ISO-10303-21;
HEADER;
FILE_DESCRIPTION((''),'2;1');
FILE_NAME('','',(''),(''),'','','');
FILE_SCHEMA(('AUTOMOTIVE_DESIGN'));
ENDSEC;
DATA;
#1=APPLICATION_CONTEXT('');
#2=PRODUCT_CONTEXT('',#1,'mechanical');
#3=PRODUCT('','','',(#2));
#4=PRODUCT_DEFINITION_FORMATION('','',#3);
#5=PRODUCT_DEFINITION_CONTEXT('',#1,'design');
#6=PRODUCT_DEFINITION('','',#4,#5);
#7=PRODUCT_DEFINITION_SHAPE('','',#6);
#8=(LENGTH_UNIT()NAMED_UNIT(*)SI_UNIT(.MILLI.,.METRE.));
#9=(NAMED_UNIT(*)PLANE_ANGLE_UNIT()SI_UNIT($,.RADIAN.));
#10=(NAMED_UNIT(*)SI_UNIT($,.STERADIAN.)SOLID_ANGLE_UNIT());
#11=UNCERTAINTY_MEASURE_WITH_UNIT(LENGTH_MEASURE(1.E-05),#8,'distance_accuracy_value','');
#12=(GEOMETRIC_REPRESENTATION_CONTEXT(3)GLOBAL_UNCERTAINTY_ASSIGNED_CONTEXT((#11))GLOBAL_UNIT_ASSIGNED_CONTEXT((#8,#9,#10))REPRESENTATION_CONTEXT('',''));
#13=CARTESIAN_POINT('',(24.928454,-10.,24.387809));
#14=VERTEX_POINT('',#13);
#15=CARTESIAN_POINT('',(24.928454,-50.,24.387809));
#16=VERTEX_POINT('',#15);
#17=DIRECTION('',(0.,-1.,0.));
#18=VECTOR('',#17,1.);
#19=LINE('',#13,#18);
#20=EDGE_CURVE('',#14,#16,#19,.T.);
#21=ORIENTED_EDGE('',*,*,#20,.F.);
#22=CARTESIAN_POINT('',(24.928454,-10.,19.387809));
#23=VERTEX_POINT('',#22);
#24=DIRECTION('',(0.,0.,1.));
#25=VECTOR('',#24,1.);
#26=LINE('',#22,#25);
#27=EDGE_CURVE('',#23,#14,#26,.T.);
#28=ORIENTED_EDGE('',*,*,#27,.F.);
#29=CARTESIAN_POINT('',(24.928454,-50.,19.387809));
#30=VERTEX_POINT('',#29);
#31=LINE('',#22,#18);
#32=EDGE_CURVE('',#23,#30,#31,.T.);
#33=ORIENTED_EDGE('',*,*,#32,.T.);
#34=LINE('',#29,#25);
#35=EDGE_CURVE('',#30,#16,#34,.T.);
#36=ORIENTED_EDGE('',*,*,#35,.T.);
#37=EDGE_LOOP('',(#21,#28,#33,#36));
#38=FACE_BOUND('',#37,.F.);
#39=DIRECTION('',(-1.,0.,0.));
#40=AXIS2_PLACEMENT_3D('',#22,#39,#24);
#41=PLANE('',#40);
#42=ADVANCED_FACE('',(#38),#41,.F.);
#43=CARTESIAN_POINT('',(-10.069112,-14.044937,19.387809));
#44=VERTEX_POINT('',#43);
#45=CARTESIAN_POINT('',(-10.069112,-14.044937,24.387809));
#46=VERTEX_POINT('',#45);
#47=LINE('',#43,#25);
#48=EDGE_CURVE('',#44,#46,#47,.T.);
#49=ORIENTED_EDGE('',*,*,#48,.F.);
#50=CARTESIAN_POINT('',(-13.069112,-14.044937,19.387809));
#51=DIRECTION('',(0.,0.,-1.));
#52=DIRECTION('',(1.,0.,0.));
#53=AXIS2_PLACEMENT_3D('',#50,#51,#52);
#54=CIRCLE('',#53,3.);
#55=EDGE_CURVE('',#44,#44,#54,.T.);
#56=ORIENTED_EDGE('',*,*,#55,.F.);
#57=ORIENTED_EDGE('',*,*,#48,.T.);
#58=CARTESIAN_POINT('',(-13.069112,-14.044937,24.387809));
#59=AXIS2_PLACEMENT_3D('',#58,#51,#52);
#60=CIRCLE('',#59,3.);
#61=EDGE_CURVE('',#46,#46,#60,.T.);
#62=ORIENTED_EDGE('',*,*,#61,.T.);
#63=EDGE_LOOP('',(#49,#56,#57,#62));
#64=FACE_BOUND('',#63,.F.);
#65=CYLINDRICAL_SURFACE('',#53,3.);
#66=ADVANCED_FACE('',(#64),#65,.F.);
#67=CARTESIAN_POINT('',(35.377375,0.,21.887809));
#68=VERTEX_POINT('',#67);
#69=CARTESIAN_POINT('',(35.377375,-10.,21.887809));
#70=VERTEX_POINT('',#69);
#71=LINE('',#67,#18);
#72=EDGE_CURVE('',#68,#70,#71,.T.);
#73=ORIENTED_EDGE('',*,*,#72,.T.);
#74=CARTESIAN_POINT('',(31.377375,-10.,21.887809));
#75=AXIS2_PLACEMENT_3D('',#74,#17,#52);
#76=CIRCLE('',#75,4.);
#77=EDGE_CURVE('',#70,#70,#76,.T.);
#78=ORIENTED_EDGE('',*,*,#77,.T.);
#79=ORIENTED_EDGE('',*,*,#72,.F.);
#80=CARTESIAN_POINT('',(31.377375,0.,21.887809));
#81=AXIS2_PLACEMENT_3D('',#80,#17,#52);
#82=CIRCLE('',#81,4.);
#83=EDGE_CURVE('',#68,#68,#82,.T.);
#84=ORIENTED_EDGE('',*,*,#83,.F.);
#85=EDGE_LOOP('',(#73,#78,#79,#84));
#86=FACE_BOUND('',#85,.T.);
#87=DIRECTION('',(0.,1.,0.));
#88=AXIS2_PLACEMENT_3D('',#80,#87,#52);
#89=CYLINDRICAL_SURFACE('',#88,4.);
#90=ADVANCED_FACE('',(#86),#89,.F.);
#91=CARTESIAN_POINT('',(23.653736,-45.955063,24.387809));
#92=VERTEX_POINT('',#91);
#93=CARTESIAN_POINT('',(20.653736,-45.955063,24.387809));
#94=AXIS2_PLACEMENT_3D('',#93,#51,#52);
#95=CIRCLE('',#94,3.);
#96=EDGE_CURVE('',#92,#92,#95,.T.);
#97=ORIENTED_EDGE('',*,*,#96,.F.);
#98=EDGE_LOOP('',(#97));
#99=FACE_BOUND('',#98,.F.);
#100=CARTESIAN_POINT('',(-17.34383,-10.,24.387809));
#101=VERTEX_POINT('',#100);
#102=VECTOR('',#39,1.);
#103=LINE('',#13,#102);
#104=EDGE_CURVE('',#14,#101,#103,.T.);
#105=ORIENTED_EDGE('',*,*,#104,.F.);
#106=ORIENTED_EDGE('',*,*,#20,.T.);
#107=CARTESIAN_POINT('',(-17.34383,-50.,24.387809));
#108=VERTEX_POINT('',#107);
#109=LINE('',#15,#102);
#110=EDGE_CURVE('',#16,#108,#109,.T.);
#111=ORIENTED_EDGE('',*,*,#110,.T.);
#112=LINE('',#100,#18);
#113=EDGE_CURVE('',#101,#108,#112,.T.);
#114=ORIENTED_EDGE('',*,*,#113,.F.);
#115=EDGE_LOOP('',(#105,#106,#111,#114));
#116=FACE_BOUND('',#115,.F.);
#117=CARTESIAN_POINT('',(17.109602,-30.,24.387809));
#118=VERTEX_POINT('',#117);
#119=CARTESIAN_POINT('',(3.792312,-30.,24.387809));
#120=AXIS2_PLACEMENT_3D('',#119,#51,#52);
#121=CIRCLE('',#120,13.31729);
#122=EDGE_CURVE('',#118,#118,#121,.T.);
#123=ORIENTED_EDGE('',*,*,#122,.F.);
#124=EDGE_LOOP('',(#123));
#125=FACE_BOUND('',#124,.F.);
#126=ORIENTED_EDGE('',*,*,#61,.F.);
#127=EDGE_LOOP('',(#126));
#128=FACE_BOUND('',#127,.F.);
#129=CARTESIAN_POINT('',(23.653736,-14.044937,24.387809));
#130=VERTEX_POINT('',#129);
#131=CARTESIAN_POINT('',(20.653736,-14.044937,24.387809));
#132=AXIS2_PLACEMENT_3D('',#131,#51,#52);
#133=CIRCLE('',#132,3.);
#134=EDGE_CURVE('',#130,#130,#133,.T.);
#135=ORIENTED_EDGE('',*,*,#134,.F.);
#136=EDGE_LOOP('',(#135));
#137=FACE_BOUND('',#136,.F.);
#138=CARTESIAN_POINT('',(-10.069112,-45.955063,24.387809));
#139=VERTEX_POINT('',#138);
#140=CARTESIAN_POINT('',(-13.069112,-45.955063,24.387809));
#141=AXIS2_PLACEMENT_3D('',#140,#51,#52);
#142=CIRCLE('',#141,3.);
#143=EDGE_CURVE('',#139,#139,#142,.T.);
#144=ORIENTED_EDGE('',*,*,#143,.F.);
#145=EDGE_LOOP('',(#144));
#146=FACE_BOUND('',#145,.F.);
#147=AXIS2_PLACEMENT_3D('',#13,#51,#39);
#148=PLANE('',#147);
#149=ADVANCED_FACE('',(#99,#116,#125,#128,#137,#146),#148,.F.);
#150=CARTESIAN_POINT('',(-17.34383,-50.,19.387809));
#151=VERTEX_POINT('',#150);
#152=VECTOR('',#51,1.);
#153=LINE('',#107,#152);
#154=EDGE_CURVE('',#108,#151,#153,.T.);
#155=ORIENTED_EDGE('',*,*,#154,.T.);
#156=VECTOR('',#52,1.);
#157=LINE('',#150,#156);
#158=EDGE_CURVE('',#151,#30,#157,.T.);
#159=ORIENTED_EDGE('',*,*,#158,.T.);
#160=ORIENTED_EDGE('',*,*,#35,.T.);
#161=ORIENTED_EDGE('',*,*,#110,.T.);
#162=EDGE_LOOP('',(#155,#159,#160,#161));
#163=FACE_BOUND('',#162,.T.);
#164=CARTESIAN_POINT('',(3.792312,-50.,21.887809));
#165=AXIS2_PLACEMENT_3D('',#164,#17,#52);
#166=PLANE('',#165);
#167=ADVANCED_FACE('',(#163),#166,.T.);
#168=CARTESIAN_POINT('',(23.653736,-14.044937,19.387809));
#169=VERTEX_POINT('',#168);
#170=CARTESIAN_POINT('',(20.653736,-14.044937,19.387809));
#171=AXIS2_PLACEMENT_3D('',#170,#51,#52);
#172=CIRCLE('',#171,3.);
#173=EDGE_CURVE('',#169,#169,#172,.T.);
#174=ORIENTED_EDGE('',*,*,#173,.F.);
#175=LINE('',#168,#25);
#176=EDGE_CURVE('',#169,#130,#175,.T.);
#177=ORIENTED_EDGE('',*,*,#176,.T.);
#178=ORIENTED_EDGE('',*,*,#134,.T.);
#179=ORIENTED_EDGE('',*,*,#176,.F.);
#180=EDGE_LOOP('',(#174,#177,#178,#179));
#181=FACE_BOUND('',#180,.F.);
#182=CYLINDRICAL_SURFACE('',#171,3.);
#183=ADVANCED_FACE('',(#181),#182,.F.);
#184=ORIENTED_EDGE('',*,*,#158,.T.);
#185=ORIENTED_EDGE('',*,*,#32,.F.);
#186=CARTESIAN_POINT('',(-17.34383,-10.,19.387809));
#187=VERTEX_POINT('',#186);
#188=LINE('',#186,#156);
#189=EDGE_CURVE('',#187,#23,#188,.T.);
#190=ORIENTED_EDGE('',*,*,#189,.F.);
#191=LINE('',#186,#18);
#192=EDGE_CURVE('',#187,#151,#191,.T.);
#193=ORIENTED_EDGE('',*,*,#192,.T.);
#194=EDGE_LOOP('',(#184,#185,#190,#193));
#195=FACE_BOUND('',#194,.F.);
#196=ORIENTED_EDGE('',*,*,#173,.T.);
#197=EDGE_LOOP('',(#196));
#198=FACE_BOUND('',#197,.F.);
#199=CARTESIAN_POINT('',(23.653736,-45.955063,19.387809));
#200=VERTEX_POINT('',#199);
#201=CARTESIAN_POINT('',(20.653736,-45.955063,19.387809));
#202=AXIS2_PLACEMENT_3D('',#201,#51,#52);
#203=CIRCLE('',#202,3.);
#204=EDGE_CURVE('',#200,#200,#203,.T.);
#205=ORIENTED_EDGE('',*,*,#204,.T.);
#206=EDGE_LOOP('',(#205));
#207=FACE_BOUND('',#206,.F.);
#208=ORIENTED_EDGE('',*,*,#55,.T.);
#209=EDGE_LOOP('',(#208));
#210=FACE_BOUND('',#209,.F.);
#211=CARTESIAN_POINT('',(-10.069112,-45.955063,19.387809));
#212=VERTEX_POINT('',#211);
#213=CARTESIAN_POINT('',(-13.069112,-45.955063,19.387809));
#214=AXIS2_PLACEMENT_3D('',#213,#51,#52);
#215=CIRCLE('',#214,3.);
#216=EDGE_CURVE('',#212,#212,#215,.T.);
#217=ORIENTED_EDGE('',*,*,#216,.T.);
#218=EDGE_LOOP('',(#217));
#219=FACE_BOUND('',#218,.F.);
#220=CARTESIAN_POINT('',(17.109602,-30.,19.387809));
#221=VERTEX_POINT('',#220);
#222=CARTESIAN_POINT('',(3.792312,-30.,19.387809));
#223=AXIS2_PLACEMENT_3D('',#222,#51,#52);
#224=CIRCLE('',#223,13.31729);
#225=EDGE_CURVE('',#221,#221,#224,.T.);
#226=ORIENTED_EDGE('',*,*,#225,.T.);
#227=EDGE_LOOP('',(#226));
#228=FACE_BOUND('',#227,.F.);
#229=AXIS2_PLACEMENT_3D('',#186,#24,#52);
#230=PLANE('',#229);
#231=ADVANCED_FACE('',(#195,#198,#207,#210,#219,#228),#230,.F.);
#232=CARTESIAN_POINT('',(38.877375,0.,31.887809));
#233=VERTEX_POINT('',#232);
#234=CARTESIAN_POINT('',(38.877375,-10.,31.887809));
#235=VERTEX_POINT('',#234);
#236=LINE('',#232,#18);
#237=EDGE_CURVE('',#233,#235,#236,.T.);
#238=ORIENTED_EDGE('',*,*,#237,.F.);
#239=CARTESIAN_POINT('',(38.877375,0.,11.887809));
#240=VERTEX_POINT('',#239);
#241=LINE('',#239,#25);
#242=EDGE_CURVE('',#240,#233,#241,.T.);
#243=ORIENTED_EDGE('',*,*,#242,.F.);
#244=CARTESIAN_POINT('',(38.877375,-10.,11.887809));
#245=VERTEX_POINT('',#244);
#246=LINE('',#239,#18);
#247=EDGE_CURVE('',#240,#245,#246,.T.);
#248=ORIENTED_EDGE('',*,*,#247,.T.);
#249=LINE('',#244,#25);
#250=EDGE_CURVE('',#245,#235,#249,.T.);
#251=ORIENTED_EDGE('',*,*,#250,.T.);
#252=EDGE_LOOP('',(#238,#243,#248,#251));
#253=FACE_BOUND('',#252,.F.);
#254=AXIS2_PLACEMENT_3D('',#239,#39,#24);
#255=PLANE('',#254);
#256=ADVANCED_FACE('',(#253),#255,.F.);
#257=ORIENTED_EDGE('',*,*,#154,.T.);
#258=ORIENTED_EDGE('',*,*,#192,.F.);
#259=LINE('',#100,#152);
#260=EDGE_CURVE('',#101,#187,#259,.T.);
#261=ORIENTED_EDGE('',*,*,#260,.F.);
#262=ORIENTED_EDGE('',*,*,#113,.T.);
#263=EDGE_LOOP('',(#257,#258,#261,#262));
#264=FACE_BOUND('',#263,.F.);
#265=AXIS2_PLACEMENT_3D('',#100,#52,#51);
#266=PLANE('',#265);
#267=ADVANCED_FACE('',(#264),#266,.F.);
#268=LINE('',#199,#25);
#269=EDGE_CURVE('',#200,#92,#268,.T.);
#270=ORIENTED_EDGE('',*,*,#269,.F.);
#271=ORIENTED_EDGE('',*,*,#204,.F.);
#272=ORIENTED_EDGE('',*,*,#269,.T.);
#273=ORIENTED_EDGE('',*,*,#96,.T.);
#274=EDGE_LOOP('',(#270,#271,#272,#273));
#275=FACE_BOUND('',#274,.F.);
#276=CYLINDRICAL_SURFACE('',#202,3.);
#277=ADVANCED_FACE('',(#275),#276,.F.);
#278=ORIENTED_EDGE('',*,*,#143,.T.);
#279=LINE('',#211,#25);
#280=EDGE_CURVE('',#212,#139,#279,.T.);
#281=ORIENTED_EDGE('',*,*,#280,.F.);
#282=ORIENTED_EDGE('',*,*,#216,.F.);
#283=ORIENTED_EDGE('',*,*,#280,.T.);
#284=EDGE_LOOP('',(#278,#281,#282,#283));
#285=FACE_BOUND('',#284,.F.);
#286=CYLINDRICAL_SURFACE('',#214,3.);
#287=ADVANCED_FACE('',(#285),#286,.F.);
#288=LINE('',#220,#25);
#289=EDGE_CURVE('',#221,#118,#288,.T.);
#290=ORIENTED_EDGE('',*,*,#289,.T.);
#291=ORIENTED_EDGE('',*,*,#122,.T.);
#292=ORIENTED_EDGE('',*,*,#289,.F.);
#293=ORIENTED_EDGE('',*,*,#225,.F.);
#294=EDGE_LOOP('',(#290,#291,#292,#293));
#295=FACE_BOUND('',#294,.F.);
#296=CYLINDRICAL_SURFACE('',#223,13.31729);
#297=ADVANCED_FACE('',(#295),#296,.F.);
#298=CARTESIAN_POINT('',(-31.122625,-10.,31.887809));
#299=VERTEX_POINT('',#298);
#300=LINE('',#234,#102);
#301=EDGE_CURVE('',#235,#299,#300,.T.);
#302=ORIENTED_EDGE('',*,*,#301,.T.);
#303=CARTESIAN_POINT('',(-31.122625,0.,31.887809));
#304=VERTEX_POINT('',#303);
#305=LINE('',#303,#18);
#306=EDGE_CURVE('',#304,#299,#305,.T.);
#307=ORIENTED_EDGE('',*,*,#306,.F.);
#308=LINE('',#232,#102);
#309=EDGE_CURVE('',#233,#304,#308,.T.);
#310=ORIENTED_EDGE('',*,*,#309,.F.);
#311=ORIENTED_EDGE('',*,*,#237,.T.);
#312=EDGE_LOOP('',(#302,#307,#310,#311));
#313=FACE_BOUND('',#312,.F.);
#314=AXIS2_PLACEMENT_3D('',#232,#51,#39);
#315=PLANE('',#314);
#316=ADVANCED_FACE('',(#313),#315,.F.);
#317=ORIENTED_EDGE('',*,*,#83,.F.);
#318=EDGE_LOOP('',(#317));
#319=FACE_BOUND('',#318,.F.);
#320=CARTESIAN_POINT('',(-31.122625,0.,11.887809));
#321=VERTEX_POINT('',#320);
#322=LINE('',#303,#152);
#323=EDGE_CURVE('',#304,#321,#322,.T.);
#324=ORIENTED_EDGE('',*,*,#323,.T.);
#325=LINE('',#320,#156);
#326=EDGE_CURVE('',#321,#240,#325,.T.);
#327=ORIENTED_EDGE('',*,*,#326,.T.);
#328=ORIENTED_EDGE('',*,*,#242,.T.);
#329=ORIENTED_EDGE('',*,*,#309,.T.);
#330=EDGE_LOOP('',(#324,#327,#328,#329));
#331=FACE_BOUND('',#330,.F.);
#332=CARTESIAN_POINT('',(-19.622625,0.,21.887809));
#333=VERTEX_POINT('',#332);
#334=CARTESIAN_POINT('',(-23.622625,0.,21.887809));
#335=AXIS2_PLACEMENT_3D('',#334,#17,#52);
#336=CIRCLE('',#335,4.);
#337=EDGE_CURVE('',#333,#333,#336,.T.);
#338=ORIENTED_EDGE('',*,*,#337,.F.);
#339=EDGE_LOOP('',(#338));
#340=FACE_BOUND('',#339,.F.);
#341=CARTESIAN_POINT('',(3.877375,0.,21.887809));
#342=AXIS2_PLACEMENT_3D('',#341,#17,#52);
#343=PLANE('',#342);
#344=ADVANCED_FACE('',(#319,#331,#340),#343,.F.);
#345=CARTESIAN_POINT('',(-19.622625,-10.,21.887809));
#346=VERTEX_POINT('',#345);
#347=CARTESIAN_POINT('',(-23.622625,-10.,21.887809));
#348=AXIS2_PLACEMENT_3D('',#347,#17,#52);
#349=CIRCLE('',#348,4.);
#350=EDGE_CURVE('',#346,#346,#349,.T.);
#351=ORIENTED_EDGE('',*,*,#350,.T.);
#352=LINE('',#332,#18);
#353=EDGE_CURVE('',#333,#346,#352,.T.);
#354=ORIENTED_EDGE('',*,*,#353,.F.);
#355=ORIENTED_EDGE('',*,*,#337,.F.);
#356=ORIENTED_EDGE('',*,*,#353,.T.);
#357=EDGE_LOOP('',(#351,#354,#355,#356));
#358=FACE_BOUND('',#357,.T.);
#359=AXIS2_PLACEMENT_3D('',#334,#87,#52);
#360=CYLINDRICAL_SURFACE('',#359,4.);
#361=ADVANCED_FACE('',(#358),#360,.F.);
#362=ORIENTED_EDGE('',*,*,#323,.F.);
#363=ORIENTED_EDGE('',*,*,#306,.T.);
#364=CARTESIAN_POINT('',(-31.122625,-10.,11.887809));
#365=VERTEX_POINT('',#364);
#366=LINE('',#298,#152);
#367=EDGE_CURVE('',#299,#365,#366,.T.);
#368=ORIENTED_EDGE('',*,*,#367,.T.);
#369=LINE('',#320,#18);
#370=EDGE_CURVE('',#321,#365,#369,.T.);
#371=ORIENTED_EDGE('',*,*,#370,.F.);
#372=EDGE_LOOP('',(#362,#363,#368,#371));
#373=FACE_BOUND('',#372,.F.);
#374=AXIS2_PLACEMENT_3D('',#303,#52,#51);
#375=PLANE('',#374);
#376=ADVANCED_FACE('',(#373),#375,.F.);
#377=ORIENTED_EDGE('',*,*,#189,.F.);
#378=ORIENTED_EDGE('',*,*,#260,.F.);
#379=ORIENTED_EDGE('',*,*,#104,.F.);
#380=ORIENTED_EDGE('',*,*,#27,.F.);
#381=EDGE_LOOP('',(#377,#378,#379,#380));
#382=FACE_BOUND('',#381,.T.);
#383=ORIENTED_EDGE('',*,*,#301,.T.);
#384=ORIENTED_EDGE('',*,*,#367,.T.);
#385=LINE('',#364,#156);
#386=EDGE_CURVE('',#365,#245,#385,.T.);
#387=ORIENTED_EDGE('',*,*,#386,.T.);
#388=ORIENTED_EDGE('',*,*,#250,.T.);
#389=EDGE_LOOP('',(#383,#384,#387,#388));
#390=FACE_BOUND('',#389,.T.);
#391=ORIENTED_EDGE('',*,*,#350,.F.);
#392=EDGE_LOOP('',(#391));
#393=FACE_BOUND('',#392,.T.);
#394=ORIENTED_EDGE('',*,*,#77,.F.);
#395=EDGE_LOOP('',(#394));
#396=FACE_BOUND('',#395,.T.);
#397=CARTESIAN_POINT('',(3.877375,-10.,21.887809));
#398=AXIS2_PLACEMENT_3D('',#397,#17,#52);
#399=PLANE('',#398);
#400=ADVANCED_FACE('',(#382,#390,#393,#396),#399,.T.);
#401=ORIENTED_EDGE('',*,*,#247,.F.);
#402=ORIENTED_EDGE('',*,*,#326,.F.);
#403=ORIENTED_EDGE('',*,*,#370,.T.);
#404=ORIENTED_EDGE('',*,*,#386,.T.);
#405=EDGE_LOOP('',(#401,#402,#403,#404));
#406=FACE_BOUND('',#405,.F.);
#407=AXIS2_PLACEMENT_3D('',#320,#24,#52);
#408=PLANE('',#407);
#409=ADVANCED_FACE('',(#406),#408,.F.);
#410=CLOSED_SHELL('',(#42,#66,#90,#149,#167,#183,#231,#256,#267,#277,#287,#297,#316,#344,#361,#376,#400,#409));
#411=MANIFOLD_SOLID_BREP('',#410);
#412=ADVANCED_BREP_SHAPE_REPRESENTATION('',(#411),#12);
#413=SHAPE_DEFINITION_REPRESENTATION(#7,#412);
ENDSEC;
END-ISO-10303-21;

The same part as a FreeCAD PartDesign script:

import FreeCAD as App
import Part
import Sketcher


def add_polygon(sketch, points):
    """Adds a closed chain of lines whose ends are joined by coincident constraints."""
    first, n = sketch.GeometryCount, len(points)
    for a, b in zip(points, points[1:] + points[:1]):
        sketch.addGeometry(Part.LineSegment(App.Vector(*a, 0), App.Vector(*b, 0)), False)
    for i in range(n):
        sketch.addConstraint(Sketcher.Constraint("Coincident", first + i, 2, first + (i + 1) % n, 1))

doc = App.newDocument("Part")
body = doc.addObject("PartDesign::Body", "Body")

# Sketch on XZ plane
sketch1 = doc.addObject("Sketcher::SketchObject", "Sketch")
body.addObject(sketch1)
sketch1.AttachmentSupport = (doc.XZ_Plane, [""])
sketch1.MapMode = "FlatFace"
add_polygon(sketch1, [(38.9, 31.9), (-31.1, 31.9), (-31.1, 11.9), (38.9, 11.9)])  # lines 0-3
sketch1.addGeometry(Part.Circle(App.Vector(-23.6, 21.9, 0), App.Vector(0, 0, 1), 4), False)  # 4
sketch1.addGeometry(Part.Circle(App.Vector(31.4, 21.9, 0), App.Vector(0, 0, 1), 4), False)  # 5
sketch1.addConstraint([
    Sketcher.Constraint("Horizontal", 0),
    Sketcher.Constraint("Vertical", 1),
    Sketcher.Constraint("Horizontal", 2),
    Sketcher.Constraint("Vertical", 3),
    Sketcher.Constraint("Equal", 4, 5),
    Sketcher.Constraint("Horizontal", 4, 3, 5, 3),
    Sketcher.Constraint("Diameter", 4, 8.0),
    Sketcher.Constraint("DistanceX", 0, 2, 0, 1, 70.0),
    Sketcher.Constraint("DistanceY", 1, 2, 1, 1, 20.0),
    Sketcher.Constraint("DistanceX", 4, 3, 5, 3, 55.0),
    Sketcher.Constraint("DistanceY", 4, 3, 0, 2, 10.0),
    Sketcher.Constraint("DistanceX", 0, 2, 4, 3, 7.5),
    Sketcher.Constraint("DistanceY", -1, 1, 4, 3, 21.887809),
    Sketcher.Constraint("DistanceX", 4, 3, -1, 1, 23.622625),
])
pad1 = doc.addObject("PartDesign::Pad", "Pad")
body.addObject(pad1)
pad1.Profile = sketch1
pad1.Length = 10

# Sketch on XZ plane
sketch2 = doc.addObject("Sketcher::SketchObject", "Sketch001")
body.addObject(sketch2)
sketch2.AttachmentSupport = (doc.XZ_Plane, [""])
sketch2.MapMode = "FlatFace"
sketch2.AttachmentOffset = App.Placement(App.Vector(0, 0, 10), App.Rotation())
add_polygon(sketch2, [(-17, 19), (25, 19), (25, 24), (-17, 24)])  # lines 0-3
sketch2.addConstraint([
    Sketcher.Constraint("Horizontal", 0),
    Sketcher.Constraint("Vertical", 1),
    Sketcher.Constraint("Horizontal", 2),
    Sketcher.Constraint("Vertical", 3),
    Sketcher.Constraint("DistanceY", 1, 1, 1, 2, 5.0),
    Sketcher.Constraint("DistanceX", 0, 1, 0, 2, 42.272284),
    Sketcher.Constraint("DistanceY", -1, 1, 0, 2, 19.387809),
    Sketcher.Constraint("DistanceX", 2, 2, -1, 1, 17.34383),
])
pad2 = doc.addObject("PartDesign::Pad", "Pad001")
body.addObject(pad2)
pad2.Profile = sketch2
pad2.Length = 40

# Sketch on XY plane
sketch3 = doc.addObject("Sketcher::SketchObject", "Sketch002")
body.addObject(sketch3)
sketch3.AttachmentSupport = (doc.XY_Plane, [""])
sketch3.MapMode = "FlatFace"
sketch3.AttachmentOffset = App.Placement(App.Vector(0, 0, 19.387809), App.Rotation())
sketch3.addGeometry([
    Part.Circle(App.Vector(20.7, -14, 0), App.Vector(0, 0, 1), 3),  # 0
    Part.Circle(App.Vector(-13.1, -14, 0), App.Vector(0, 0, 1), 3),  # 1
    Part.Circle(App.Vector(-13.1, -46, 0), App.Vector(0, 0, 1), 3),  # 2
    Part.Circle(App.Vector(20.7, -46, 0), App.Vector(0, 0, 1), 3),  # 3
    Part.Circle(App.Vector(3.8, -30, 0), App.Vector(0, 0, 1), 13.3),  # 4
], False)
sketch3.addConstraint([
    Sketcher.Constraint("Equal", 0, 1),
    Sketcher.Constraint("Equal", 1, 2),
    Sketcher.Constraint("Equal", 2, 3),
    Sketcher.Constraint("Horizontal", 0, 3, 1, 3),
    Sketcher.Constraint("Horizontal", 2, 3, 3, 3),
    Sketcher.Constraint("Vertical", 1, 3, 2, 3),
    Sketcher.Constraint("Vertical", 0, 3, 3, 3),
    Sketcher.Constraint("Diameter", 0, 6.0),
    Sketcher.Constraint("DistanceY", 4, 3, -1, 1, 30.0),
    Sketcher.Constraint("Diameter", 4, 26.63458),
    Sketcher.Constraint("DistanceX", -1, 1, 4, 3, 3.792312),
    Sketcher.Constraint("DistanceX", -1, 1, 0, 3, 20.653736),
    Sketcher.Constraint("DistanceY", 0, 3, -1, 1, 14.044937),
    Sketcher.Constraint("DistanceX", 1, 3, -1, 1, 13.069112),
    Sketcher.Constraint("DistanceY", 2, 3, -1, 1, 45.955063),
])
pocket1 = doc.addObject("PartDesign::Pocket", "Pocket")
body.addObject(pocket1)
pocket1.Profile = sketch3
pocket1.Length = 25
pocket1.Reversed = True

doc.recompute()
